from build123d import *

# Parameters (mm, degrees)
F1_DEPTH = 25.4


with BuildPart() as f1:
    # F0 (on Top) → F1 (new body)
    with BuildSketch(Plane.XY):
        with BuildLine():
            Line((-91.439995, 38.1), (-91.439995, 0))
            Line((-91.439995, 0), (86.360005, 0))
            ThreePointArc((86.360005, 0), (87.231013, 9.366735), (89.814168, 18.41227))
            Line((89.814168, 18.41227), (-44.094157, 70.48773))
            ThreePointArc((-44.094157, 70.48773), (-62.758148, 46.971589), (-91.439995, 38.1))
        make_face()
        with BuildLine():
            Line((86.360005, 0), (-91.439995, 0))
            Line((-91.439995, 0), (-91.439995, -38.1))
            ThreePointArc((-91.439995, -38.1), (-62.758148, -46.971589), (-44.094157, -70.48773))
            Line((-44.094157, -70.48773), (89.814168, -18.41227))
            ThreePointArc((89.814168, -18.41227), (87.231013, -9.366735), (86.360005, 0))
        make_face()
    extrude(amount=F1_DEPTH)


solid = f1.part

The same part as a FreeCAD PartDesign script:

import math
import FreeCAD as App
import Part
import Sketcher
from FreeCAD import Vector
Q = App.Units.Quantity

doc = App.newDocument("Part")
body = doc.addObject("PartDesign::Body", "Body")

sketch1 = body.newObject("Sketcher::SketchObject", "Sketch")
sketch1.AttachmentSupport = (doc.getObject("XY_Plane"), [""])
sketch1.MapMode = "FlatFace"
sketch1.addGeometry(Part.LineSegment(Vector(-91, 38, 0), Vector(-91, -38, 0)), False)
sketch1.addGeometry(Part.ArcOfCircle(Part.Circle(Vector(-91, -89, 0), Vector(0, 0, 1), 51), math.radians(21), math.radians(90)), False)
sketch1.addGeometry(Part.LineSegment(Vector(-44, -70, 0), Vector(90, -18, 0)), False)
sketch1.addGeometry(Part.ArcOfCircle(Part.Circle(Vector(137, 0, 0), Vector(0, 0, 1), 51), math.radians(-180), math.radians(-159)), False)
sketch1.addGeometry(Part.ArcOfCircle(Part.Circle(Vector(137, 0, 0), Vector(0, 0, 1), 51), math.radians(159), math.radians(180)), False)
sketch1.addGeometry(Part.LineSegment(Vector(90, 18, 0), Vector(-44, 70, 0)), False)
sketch1.addGeometry(Part.ArcOfCircle(Part.Circle(Vector(-91, 89, 0), Vector(0, 0, 1), 51), math.radians(-90), math.radians(-21)), False)
sketch1.addConstraint(Sketcher.Constraint("Coincident", 0, 2, 1, 2))
sketch1.addConstraint(Sketcher.Constraint("Coincident", 1, 1, 2, 1))
sketch1.addConstraint(Sketcher.Constraint("Coincident", 2, 2, 3, 2))
sketch1.addConstraint(Sketcher.Constraint("Tangent", 3, 1, 4, 2))
sketch1.addConstraint(Sketcher.Constraint("Coincident", 4, 1, 5, 1))
sketch1.addConstraint(Sketcher.Constraint("Coincident", 5, 2, 6, 2))
sketch1.addConstraint(Sketcher.Constraint("Coincident", 6, 1, 0, 1))
sketch1.addConstraint(Sketcher.Constraint("Vertical", 0))
sketch1.addConstraint(Sketcher.Constraint("Equal", 3, 4))
sketch1.addConstraint(Sketcher.Constraint("Equal", 1, 6))
sketch1.addConstraint(Sketcher.Constraint("Symmetric", 1, 3, 6, 3, -1))
sketch1.addConstraint(Sketcher.Constraint("Symmetric", 2, 2, 4, 1, -1))
sketch1.addConstraint(Sketcher.Constraint("PointOnObject", 3, 1, -1))
sketch1.addConstraint(Sketcher.Constraint("Vertical", 6, 3, 0, 2))
sketch1.addConstraint(Sketcher.Constraint("Vertical", 1, 1, 5, 2))
sketch1.addConstraint(Sketcher.Constraint("Radius", 1, Q("2.0000001 in")))
sketch1.addConstraint(Sketcher.Constraint("DistanceY", 0, 2, 0, 1, Q("3 in")))
sketch1.addConstraint(Sketcher.Constraint("DistanceX", 0, 2, 3, 1, Q("7 in")))
sketch1.addConstraint(Sketcher.Constraint("DistanceX", 1, 3, -1, 1, Q("3.5999998 in")))
sketch1.addConstraint(Sketcher.Constraint("DistanceY", 1, 1, 4, 1, Q("3.5 in")))
sketch1.addConstraint(Sketcher.Constraint("Radius", 3, Q("50.80001 mm")))
sketch1.addConstraint(Sketcher.Constraint("DistanceY", 1, 1, -1, 1, Q("70.48773 mm")))
pad1 = body.newObject("PartDesign::Pad", "Pad")
pad1.Profile = sketch1
pad1.Length = Q("1 in")

doc.recompute()
